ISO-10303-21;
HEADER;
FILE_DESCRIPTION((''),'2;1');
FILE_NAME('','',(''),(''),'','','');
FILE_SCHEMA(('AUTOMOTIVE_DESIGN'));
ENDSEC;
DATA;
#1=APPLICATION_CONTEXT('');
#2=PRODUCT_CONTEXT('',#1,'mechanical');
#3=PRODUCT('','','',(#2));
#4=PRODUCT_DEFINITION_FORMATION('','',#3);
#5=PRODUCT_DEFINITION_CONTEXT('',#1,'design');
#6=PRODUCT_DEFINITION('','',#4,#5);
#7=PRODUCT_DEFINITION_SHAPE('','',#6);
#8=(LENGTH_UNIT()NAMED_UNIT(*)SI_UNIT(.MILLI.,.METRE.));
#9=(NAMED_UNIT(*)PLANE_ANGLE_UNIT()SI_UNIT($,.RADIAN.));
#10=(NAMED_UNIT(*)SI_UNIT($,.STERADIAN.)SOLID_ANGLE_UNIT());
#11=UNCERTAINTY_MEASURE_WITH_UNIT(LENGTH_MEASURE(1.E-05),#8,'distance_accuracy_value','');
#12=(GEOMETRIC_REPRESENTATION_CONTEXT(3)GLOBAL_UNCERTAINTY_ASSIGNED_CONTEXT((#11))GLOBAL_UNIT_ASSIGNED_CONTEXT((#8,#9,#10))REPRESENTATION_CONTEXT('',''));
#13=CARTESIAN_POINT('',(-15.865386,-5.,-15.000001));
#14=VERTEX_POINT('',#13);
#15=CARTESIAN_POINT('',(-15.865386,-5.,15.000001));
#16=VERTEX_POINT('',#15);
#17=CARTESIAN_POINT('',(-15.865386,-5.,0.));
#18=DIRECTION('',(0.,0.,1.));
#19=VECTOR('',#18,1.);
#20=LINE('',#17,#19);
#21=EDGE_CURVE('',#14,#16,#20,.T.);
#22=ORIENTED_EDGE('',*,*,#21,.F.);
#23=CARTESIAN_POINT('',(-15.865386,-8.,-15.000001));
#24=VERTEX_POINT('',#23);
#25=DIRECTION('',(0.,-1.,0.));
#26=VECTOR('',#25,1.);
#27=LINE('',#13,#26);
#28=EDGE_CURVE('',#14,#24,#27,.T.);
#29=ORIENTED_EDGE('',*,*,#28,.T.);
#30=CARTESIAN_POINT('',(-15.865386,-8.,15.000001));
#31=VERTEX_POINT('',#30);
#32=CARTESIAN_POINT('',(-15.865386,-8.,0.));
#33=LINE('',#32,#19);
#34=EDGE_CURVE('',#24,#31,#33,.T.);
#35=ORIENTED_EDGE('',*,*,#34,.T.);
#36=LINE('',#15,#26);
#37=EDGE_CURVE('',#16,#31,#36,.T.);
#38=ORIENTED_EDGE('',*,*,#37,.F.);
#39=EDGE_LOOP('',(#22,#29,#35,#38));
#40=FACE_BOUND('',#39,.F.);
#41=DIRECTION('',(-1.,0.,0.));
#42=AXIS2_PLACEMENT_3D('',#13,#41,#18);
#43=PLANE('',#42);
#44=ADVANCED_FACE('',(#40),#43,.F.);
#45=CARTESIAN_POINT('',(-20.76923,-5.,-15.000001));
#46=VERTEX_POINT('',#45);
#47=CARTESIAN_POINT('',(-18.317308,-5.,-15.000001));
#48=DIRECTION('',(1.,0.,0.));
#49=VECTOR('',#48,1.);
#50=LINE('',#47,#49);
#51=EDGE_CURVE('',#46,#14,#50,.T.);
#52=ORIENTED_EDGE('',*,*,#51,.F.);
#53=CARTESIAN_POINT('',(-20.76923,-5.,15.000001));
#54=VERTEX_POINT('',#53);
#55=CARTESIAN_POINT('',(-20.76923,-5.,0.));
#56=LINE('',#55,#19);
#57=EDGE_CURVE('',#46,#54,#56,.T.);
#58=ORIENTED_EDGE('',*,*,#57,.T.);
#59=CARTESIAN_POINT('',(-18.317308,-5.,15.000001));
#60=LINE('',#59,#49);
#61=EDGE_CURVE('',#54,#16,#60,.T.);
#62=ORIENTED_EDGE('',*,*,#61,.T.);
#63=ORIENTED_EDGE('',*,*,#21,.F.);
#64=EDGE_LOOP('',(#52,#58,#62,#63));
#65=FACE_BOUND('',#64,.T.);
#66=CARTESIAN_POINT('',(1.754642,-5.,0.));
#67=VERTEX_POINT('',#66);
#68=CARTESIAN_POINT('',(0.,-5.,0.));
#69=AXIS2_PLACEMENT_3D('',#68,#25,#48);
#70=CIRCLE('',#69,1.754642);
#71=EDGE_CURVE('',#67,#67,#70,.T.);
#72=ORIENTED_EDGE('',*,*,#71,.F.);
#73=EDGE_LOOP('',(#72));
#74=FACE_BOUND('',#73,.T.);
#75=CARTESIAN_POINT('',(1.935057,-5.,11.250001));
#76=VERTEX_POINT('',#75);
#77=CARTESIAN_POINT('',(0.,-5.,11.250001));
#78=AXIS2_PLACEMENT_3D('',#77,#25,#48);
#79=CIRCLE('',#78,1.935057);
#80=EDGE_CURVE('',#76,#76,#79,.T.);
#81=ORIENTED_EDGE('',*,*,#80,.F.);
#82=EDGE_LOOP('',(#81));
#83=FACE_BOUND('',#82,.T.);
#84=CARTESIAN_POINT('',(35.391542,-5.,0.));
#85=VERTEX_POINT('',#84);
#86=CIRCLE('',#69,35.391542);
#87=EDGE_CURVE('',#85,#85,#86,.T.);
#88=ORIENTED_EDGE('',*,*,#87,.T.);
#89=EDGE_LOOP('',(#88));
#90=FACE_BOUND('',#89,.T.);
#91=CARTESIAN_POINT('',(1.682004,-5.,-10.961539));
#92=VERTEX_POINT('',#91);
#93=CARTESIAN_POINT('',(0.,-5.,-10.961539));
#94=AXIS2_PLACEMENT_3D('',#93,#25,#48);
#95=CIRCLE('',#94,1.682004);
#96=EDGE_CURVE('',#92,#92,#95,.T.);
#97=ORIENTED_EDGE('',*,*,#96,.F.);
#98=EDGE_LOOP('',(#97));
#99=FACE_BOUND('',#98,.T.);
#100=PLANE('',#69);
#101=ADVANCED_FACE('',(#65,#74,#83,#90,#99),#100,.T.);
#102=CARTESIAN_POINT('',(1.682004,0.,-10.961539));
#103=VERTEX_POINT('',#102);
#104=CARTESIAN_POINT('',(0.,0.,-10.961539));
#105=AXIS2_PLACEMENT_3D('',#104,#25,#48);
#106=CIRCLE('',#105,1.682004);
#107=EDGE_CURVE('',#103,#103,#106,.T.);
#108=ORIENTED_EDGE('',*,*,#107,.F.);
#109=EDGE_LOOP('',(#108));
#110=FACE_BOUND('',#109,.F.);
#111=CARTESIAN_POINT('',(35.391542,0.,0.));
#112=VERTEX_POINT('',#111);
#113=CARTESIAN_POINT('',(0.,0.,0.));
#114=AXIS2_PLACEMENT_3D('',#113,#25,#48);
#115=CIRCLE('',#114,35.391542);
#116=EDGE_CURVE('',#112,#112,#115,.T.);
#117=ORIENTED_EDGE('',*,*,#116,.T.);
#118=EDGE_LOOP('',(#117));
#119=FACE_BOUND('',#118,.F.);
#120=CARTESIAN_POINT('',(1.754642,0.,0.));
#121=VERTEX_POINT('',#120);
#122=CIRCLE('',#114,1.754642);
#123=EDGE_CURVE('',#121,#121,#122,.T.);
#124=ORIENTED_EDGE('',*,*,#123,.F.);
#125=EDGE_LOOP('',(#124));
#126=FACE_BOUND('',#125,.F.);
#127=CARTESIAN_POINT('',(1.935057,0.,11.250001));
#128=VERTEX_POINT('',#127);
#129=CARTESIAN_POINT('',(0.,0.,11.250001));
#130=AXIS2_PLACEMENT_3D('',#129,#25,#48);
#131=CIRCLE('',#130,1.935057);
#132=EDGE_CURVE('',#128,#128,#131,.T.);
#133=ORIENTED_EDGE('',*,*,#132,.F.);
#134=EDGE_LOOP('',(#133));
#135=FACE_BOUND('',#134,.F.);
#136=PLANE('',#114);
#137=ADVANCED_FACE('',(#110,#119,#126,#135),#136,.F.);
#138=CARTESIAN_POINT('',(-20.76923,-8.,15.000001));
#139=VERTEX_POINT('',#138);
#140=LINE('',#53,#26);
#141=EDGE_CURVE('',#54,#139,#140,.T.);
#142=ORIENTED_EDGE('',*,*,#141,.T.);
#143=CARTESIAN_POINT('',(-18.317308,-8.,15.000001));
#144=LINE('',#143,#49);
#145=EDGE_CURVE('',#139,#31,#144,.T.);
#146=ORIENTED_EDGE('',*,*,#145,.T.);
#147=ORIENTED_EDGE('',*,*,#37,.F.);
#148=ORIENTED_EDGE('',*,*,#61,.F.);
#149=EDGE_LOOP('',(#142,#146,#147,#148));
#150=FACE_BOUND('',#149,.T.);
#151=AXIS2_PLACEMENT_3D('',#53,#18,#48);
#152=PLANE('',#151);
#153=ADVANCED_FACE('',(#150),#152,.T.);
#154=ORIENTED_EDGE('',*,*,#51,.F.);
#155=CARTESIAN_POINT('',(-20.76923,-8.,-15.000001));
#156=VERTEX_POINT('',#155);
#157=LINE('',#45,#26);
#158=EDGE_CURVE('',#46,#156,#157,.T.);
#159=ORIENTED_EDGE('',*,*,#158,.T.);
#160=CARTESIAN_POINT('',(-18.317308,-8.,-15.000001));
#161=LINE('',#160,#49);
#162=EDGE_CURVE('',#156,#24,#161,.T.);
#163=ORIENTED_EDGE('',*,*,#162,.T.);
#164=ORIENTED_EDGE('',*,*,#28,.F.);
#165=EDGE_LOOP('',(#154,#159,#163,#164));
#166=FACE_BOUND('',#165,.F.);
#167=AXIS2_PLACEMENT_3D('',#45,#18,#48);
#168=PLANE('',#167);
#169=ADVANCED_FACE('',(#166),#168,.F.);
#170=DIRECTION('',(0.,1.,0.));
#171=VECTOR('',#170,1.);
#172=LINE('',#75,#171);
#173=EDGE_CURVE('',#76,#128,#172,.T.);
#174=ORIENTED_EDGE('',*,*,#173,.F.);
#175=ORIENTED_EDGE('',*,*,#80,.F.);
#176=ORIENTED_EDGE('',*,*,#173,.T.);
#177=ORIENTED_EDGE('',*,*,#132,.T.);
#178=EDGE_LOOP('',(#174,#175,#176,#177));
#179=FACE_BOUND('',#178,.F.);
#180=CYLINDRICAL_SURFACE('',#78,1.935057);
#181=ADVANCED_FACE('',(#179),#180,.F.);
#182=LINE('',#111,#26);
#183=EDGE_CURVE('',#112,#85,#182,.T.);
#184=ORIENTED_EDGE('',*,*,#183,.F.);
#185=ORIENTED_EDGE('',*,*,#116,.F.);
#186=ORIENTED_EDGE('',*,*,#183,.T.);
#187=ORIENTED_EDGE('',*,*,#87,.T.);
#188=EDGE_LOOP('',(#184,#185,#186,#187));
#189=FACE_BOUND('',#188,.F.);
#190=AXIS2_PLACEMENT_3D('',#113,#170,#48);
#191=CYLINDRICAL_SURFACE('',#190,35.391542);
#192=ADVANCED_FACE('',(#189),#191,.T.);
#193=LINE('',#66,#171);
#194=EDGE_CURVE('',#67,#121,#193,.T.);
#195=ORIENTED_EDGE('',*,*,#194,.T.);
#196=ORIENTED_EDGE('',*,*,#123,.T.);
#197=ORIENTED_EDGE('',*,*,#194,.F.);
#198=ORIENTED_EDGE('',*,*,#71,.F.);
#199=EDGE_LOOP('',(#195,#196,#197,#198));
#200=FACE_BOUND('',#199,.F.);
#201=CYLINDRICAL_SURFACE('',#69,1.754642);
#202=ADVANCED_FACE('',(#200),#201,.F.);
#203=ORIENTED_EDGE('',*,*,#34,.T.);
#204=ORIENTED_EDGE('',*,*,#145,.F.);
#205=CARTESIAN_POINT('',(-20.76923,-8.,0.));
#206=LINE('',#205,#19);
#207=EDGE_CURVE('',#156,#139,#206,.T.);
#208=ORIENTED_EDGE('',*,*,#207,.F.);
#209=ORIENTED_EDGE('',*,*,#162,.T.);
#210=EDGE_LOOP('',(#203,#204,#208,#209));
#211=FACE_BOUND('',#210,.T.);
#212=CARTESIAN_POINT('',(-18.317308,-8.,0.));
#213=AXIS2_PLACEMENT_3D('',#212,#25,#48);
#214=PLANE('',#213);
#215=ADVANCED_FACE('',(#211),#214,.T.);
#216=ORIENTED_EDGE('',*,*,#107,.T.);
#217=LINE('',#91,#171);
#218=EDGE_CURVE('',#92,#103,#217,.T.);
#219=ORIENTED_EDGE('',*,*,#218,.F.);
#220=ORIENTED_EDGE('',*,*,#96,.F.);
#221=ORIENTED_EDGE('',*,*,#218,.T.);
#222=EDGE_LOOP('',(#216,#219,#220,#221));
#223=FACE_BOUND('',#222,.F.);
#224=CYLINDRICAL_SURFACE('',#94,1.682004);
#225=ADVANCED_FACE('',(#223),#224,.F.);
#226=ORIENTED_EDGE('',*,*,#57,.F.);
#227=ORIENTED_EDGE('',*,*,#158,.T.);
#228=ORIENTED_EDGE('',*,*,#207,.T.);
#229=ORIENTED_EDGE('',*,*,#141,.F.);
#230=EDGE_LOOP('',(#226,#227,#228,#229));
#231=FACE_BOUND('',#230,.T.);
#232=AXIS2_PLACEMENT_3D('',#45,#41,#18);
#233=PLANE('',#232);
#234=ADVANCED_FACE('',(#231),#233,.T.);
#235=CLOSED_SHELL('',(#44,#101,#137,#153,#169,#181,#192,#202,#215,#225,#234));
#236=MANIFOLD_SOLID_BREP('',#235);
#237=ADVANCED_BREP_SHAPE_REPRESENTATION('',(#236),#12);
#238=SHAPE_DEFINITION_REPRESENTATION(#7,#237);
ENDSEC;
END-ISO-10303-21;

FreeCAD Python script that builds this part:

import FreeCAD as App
import Part
import Sketcher

V = App.Vector
Q = App.Units.Quantity

doc = App.newDocument("Part")
body = doc.addObject("PartDesign::Body", "Body")

# Sketch on XZ plane
sketch1 = body.newObject("Sketcher::SketchObject", "Sketch")
sketch1.AttachmentSupport = (doc.getObject("XZ_Plane"), [""])
sketch1.MapMode = "FlatFace"
sketch1.addGeometry(Part.Circle(V(0, 0, 0), V(0, 0, 1), 35), False)
sketch1.addConstraint([
    Sketcher.Constraint("Coincident", 0, 3, -1, 1),
    Sketcher.Constraint("Diameter", 0, Q("70.783084 mm")),
])
pad1 = body.newObject("PartDesign::Pad", "Pad")
pad1.Profile = sketch1
pad1.Length = 5

# Sketch on XZ plane
sketch2 = body.newObject("Sketcher::SketchObject", "Sketch001")
sketch2.AttachmentSupport = (doc.getObject("XZ_Plane"), [""])
sketch2.MapMode = "FlatFace"
sketch2.AttachmentOffset = App.Placement(V(0, 0, 5), App.Rotation())
sketch2.addGeometry(Part.Circle(V(0, -11, 0), V(0, 0, 1), 1.7), False)
sketch2.addConstraint([
    Sketcher.Constraint("PointOnObject", 0, 3, -2),
    Sketcher.Constraint("Diameter", 0, Q("3.364008 mm")),
    Sketcher.Constraint("DistanceY", 0, 3, -1, 1, Q("10.961539 mm")),
])
pocket1 = body.newObject("PartDesign::Pocket", "Pocket")
pocket1.Profile = sketch2
pocket1.Length = 25

# Sketch on XZ plane
sketch3 = body.newObject("Sketcher::SketchObject", "Sketch002")
sketch3.AttachmentSupport = (doc.getObject("XZ_Plane"), [""])
sketch3.MapMode = "FlatFace"
sketch3.AttachmentOffset = App.Placement(V(0, 0, 5), App.Rotation())
sketch3.addGeometry(Part.Circle(V(0, 11.3, 0), V(0, 0, 1), 1.9), False)
sketch3.addConstraint([
    Sketcher.Constraint("PointOnObject", 0, 3, -2),
    Sketcher.Constraint("DistanceY", -1, 1, 0, 3, Q("11.250001 mm")),
    Sketcher.Constraint("Diameter", 0, Q("3.870114 mm")),
])
pocket2 = body.newObject("PartDesign::Pocket", "Pocket001")
pocket2.Profile = sketch3
pocket2.Length = 25

# Sketch on XZ plane
sketch4 = body.newObject("Sketcher::SketchObject", "Sketch003")
sketch4.AttachmentSupport = (doc.getObject("XZ_Plane"), [""])
sketch4.MapMode = "FlatFace"
sketch4.AttachmentOffset = App.Placement(V(0, 0, 5), App.Rotation())
sketch4.addGeometry(Part.Circle(V(0, 0, 0), V(0, 0, 1), 1.8), False)
sketch4.addConstraint([
    Sketcher.Constraint("Coincident", 0, 3, -1, 1),
    Sketcher.Constraint("Diameter", 0, Q("3.509284 mm")),
])
pocket3 = body.newObject("PartDesign::Pocket", "Pocket002")
pocket3.Profile = sketch4
pocket3.Length = 25

# Sketch on XZ plane
sketch5 = body.newObject("Sketcher::SketchObject", "Sketch004")
sketch5.AttachmentSupport = (doc.getObject("XZ_Plane"), [""])
sketch5.MapMode = "FlatFace"
sketch5.AttachmentOffset = App.Placement(V(0, 0, 5), App.Rotation())
sketch5.addGeometry([
    Part.LineSegment(V(-20.8, 15, 0), V(-20.8, -15, 0)),
    Part.LineSegment(V(-20.8, -15, 0), V(-15.9, -15, 0)),
    Part.LineSegment(V(-15.9, -15, 0), V(-15.9, 15, 0)),
    Part.LineSegment(V(-15.9, 15, 0), V(-20.8, 15, 0)),
], False)
sketch5.addConstraint([
    Sketcher.Constraint("Coincident", 0, 2, 1, 1),
    Sketcher.Constraint("Coincident", 1, 2, 2, 1),
    Sketcher.Constraint("Coincident", 2, 2, 3, 1),
    Sketcher.Constraint("Coincident", 3, 2, 0, 1),
    Sketcher.Constraint("Vertical", 0),
    Sketcher.Constraint("Horizontal", 1),
    Sketcher.Constraint("Vertical", 2),
    Sketcher.Constraint("Horizontal", 3),
    Sketcher.Constraint("DistanceY", 0, 2, 0, 1, Q("30.000002 mm")),
    Sketcher.Constraint("DistanceY", 0, 2, -1, 1, Q("15.000001 mm")),
    Sketcher.Constraint("DistanceX", 1, 1, 1, 2, Q("4.903845 mm")),
    Sketcher.Constraint("DistanceX", 0, 2, -1, 1, Q("20.76923 mm")),
])
pad2 = body.newObject("PartDesign::Pad", "Pad001")
pad2.Profile = sketch5
pad2.Length = 3

doc.recompute()
